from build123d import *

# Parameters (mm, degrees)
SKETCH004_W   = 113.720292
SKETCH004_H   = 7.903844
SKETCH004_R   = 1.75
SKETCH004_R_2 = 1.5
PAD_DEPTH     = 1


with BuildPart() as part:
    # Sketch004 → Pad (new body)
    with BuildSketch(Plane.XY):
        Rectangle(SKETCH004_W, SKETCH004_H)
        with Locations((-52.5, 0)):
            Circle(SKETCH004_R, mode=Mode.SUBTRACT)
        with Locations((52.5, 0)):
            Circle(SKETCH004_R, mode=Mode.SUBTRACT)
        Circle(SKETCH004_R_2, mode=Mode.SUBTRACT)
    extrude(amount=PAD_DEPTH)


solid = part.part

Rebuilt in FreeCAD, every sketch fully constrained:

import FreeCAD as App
import Part
import Sketcher

V = App.Vector


def add_polygon(sketch, points):
    """Adds a closed chain of lines whose ends are joined by coincident constraints."""
    first, n = sketch.GeometryCount, len(points)
    for a, b in zip(points, points[1:] + points[:1]):
        sketch.addGeometry(Part.LineSegment(App.Vector(*a, 0), App.Vector(*b, 0)), False)
    for i in range(n):
        sketch.addConstraint(Sketcher.Constraint("Coincident", first + i, 2, first + (i + 1) % n, 1))

doc = App.newDocument("Part")
body = doc.addObject("PartDesign::Body", "Body")

sketch1 = doc.addObject("Sketcher::SketchObject", "Sketch")
body.addObject(sketch1)
sketch1.AttachmentSupport = (doc.XY_Plane, [""])
sketch1.MapMode = "FlatFace"
add_polygon(sketch1, [(-56.860146, 3.951922), (-56.860146, -3.951922), (56.860146, -3.951922), (56.860146, 3.951922)])
sketch1.addGeometry(Part.Circle(V(-52.5, 0, 0), V(0, 0, 1), 1.75), False)
sketch1.addGeometry(Part.Circle(V(0, 0, 0), V(0, 0, 1), 1.5), False)
sketch1.addGeometry(Part.Circle(V(52.5, 0, 0), V(0, 0, 1), 1.75), False)
sketch1.addConstraint([
    Sketcher.Constraint("Vertical", 0),
    Sketcher.Constraint("Horizontal", 1),
    Sketcher.Constraint("Vertical", 2),
    Sketcher.Constraint("Horizontal", 3),
    Sketcher.Constraint("Coincident", 5, 3, -1, 1),
    Sketcher.Constraint("Equal", 4, 6),
    Sketcher.Constraint("Symmetric", 4, 3, 6, 3, -1, 1),
    Sketcher.Constraint("Symmetric", 0, 2, 2, 2, -1, 1),
    Sketcher.Constraint("PointOnObject", 4, 3, -1),
    Sketcher.Constraint("Diameter", 5, 3.0),
    Sketcher.Constraint("Diameter", 4, 3.5),
    Sketcher.Constraint("DistanceX", 4, 3, 6, 3, 105.0),
    Sketcher.Constraint("DistanceX", 1, 1, 1, 2, 113.720292),
    Sketcher.Constraint("DistanceY", 0, 2, 0, 1, 7.903844),
])
pad1 = doc.addObject("PartDesign::Pad", "Pad")
body.addObject(pad1)
pad1.Profile = sketch1
pad1.Length = 1

doc.recompute()
